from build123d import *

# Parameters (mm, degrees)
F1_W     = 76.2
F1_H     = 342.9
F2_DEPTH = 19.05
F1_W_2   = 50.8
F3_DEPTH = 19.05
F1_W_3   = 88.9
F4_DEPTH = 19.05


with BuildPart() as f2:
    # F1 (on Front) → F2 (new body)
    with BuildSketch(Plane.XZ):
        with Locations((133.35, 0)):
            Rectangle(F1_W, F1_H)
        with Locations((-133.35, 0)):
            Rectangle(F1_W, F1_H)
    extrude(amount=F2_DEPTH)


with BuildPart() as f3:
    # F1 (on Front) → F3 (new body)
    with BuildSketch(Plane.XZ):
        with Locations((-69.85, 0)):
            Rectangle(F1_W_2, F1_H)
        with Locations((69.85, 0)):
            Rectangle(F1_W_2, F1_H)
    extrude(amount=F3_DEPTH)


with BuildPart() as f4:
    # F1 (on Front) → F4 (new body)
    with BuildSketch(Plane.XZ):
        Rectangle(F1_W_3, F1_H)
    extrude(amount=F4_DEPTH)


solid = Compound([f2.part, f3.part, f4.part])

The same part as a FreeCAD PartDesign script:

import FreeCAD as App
import Part
import Sketcher
Q = App.Units.Quantity


def add_polygon(sketch, points):
    """Adds a closed chain of lines whose ends are joined by coincident constraints."""
    first, n = sketch.GeometryCount, len(points)
    for a, b in zip(points, points[1:] + points[:1]):
        sketch.addGeometry(Part.LineSegment(App.Vector(*a, 0), App.Vector(*b, 0)), False)
    for i in range(n):
        sketch.addConstraint(Sketcher.Constraint("Coincident", first + i, 2, first + (i + 1) % n, 1))

doc = App.newDocument("Part")
body = doc.addObject("PartDesign::Body", "Body")
body.AllowCompound = True

# Sketch on XZ plane
sketch1 = body.newObject("Sketcher::SketchObject", "Sketch")
sketch1.AttachmentSupport = (doc.getObject("XZ_Plane"), [""])
sketch1.MapMode = "FlatFace"
add_polygon(sketch1, [(95.25, 171.45), (95.25, -171.45), (171.45, -171.45), (171.45, 171.45)])  # lines 0-3
add_polygon(sketch1, [(-171.45, 171.45), (-171.45, -171.45), (-95.25, -171.45), (-95.25, 171.45)])  # lines 4-7
sketch1.addConstraint([
    Sketcher.Constraint("Vertical", 0),
    Sketcher.Constraint("Horizontal", 1),
    Sketcher.Constraint("Vertical", 2),
    Sketcher.Constraint("Horizontal", 3),
    Sketcher.Constraint("Vertical", 4),
    Sketcher.Constraint("Horizontal", 5),
    Sketcher.Constraint("Vertical", 6),
    Sketcher.Constraint("Horizontal", 7),
    Sketcher.Constraint("Symmetric", 2, 2, 4, 2, -1, 1),
    Sketcher.Constraint("Symmetric", 0, 2, 6, 2, -1, 1),
    Sketcher.Constraint("Horizontal", 1, 2, 4, 2),
    Sketcher.Constraint("DistanceX", 1, 1, 1, 2, Q("3 in")),
    Sketcher.Constraint("DistanceY", 0, 2, 0, 1, Q("13.5 in")),
    Sketcher.Constraint("DistanceX", 4, 2, 0, 2, Q("10.5 in")),
])
pad1 = body.newObject("PartDesign::Pad", "Pad")
pad1.Profile = sketch1
pad1.Length = Q("0.75 in")
body2 = doc.addObject("PartDesign::Body", "Body001")
body2.AllowCompound = True

# Sketch on XZ plane
sketch2 = body2.newObject("Sketcher::SketchObject", "Sketch001")
sketch2.AttachmentSupport = (doc.getObject("XZ_Plane001"), [""])
sketch2.MapMode = "FlatFace"
add_polygon(sketch2, [(-95.25, 171.45), (-95.25, -171.45), (-44.45, -171.45), (-44.45, 171.45)])  # lines 0-3
add_polygon(sketch2, [(44.45, 171.45), (44.45, -171.45), (95.25, -171.45), (95.25, 171.45)])  # lines 4-7
sketch2.addConstraint([
    Sketcher.Constraint("Vertical", 0),
    Sketcher.Constraint("Horizontal", 1),
    Sketcher.Constraint("Vertical", 2),
    Sketcher.Constraint("Horizontal", 3),
    Sketcher.Constraint("Vertical", 4),
    Sketcher.Constraint("Horizontal", 5),
    Sketcher.Constraint("Vertical", 6),
    Sketcher.Constraint("Horizontal", 7),
    Sketcher.Constraint("Symmetric", 2, 2, 4, 2, -1, 1),
    Sketcher.Constraint("Symmetric", 0, 2, 6, 2, -1, 1),
    Sketcher.Constraint("Horizontal", 1, 2, 4, 2),
    Sketcher.Constraint("DistanceX", 1, 1, 1, 2, Q("2 in")),
    Sketcher.Constraint("DistanceY", 0, 2, 0, 1, Q("13.5 in")),
    Sketcher.Constraint("DistanceX", 1, 2, 4, 2, Q("3.5 in")),
])
pad2 = body2.newObject("PartDesign::Pad", "Pad001")
pad2.Profile = sketch2
pad2.Length = Q("0.75 in")
body3 = doc.addObject("PartDesign::Body", "Body002")

# Sketch on XZ plane
sketch3 = body3.newObject("Sketcher::SketchObject", "Sketch002")
sketch3.AttachmentSupport = (doc.getObject("XZ_Plane002"), [""])
sketch3.MapMode = "FlatFace"
add_polygon(sketch3, [(-44.45, 171.45), (-44.45, -171.45), (44.45, -171.45), (44.45, 171.45)])  # lines 0-3
sketch3.addConstraint([
    Sketcher.Constraint("Vertical", 0),
    Sketcher.Constraint("Horizontal", 1),
    Sketcher.Constraint("Vertical", 2),
    Sketcher.Constraint("Horizontal", 3),
    Sketcher.Constraint("Symmetric", 0, 2, 2, 2, -1, 1),
    Sketcher.Constraint("DistanceX", 1, 1, 1, 2, Q("3.5 in")),
    Sketcher.Constraint("DistanceY", 0, 2, 0, 1, Q("13.5 in")),
])
pad3 = body3.newObject("PartDesign::Pad", "Pad002")
pad3.Profile = sketch3
pad3.Length = Q("0.75 in")

doc.recompute()
